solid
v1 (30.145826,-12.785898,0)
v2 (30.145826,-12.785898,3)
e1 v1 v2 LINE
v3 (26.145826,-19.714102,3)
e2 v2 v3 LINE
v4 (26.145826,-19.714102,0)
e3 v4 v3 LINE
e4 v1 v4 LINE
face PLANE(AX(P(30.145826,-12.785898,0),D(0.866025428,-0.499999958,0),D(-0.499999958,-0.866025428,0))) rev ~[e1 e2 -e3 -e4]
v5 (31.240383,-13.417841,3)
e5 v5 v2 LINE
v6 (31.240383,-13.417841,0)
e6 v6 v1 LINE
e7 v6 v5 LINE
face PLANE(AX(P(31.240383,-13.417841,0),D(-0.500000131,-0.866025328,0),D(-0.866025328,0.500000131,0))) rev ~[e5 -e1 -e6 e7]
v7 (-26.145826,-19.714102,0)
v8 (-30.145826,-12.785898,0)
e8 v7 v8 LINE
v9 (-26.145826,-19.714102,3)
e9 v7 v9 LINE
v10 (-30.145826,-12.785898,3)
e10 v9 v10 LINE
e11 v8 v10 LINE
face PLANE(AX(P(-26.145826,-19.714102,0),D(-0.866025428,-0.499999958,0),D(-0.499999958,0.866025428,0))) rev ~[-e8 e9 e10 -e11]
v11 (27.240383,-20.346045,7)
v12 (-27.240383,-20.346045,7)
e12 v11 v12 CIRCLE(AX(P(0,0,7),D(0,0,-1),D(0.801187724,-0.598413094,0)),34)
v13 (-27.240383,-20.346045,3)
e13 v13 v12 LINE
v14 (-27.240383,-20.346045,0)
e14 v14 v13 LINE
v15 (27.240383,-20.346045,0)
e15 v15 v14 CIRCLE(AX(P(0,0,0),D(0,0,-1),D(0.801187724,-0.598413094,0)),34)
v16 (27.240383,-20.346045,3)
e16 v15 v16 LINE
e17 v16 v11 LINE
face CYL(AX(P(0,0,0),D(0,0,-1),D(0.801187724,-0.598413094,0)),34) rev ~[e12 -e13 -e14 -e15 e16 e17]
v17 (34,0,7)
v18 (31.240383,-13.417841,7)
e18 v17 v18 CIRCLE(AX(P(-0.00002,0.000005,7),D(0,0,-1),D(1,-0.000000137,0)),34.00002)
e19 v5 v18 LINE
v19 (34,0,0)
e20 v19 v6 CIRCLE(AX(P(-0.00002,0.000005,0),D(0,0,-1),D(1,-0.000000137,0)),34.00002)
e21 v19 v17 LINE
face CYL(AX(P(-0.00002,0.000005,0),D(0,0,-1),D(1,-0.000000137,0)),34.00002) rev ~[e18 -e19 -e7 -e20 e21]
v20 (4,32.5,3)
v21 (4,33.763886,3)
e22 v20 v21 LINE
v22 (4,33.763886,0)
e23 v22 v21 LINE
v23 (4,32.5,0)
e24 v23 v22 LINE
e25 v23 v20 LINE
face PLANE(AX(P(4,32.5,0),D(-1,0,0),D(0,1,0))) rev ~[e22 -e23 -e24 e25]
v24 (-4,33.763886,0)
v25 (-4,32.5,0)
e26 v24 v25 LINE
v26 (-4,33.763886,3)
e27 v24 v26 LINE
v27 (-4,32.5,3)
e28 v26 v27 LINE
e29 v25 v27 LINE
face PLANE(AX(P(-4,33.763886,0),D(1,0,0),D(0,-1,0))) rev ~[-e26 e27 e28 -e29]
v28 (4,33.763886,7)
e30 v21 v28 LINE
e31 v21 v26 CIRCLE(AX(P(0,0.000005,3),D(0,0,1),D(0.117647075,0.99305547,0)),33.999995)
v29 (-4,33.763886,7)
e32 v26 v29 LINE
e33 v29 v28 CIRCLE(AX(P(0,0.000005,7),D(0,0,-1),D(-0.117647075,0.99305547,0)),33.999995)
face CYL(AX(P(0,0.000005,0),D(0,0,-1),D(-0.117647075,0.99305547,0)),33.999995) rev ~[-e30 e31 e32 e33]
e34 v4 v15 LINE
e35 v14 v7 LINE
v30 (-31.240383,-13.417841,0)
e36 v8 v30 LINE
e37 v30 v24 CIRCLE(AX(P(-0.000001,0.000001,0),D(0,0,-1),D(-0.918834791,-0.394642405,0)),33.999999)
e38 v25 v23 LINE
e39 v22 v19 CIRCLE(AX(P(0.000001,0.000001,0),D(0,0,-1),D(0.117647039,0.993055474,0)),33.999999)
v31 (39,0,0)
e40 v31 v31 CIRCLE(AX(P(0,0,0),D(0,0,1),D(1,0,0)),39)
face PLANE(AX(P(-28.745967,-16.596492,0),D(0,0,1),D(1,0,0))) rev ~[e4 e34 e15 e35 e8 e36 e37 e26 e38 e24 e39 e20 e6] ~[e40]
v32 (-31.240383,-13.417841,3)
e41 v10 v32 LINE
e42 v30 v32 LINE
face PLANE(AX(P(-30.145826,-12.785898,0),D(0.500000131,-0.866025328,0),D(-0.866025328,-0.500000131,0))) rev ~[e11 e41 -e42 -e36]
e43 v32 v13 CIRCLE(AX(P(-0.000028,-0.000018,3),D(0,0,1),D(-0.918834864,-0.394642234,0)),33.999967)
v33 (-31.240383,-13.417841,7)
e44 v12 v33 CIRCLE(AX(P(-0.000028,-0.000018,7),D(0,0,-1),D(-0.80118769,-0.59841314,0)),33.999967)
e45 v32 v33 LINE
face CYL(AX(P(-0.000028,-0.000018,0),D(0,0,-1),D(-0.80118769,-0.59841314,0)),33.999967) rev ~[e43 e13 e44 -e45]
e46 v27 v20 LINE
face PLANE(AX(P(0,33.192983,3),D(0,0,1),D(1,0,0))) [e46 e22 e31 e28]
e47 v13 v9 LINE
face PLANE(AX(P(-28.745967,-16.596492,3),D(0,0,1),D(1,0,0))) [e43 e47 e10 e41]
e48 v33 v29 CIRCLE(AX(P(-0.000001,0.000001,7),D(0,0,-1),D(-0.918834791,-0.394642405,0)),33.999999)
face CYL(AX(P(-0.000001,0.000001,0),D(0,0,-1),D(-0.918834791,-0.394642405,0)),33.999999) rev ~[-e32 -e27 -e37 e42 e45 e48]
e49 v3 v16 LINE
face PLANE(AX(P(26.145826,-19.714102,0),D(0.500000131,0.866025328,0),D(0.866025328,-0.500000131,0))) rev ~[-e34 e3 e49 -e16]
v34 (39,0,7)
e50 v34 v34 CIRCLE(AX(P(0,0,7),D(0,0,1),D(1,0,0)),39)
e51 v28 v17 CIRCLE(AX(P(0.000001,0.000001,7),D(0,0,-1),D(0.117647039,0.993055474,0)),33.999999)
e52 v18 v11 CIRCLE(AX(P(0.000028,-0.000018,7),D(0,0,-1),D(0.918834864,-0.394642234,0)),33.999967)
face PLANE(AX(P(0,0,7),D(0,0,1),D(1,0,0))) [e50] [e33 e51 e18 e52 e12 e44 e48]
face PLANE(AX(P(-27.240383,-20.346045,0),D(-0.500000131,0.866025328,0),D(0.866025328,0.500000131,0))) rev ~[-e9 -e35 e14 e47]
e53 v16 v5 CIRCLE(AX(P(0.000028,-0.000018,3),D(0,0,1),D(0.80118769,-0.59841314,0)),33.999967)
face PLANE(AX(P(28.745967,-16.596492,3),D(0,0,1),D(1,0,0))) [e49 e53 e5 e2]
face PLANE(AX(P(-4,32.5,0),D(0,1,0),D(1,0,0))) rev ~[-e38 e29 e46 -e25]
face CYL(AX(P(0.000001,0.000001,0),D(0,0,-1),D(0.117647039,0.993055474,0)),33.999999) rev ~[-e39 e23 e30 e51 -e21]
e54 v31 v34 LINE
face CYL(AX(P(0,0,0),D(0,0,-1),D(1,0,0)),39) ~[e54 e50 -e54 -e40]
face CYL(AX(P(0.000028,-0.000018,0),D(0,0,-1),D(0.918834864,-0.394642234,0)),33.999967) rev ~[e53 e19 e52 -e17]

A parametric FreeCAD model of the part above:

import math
import FreeCAD as App
import Part
import Sketcher
from FreeCAD import Vector
Q = App.Units.Quantity

doc = App.newDocument("Part")
body = doc.addObject("PartDesign::Body", "Body")

# Sketch on XY plane
sketch1 = doc.addObject("Sketcher::SketchObject", "Sketch")
body.addObject(sketch1)
sketch1.AttachmentSupport = (doc.XY_Plane, [""])
sketch1.MapMode = "FlatFace"
sketch1.addGeometry(Part.Circle(Vector(0, 0, 0), Vector(0, 0, 1), 39), False)
sketch1.addGeometry(Part.ArcOfCircle(Part.Circle(Vector(0, 0.000005, 0), Vector(0, 0, 1), 33.999995), math.radians(83.243672), math.radians(96.756328)), False)
sketch1.addGeometry(Part.ArcOfCircle(Part.Circle(Vector(0.000001, 0.000001, 0), Vector(0, 0, 1), 33.999999), math.radians(-0.000001), math.radians(83.243674)), False)
sketch1.addGeometry(Part.ArcOfCircle(Part.Circle(Vector(-0.00002, 0.000005, 0), Vector(0, 0, 1), 34.00002), math.radians(-23.243666), math.radians(-0.000008)), False)
sketch1.addGeometry(Part.ArcOfCircle(Part.Circle(Vector(0.000028, -0.000018, 0), Vector(0, 0, 1), 33.999967), math.radians(-36.756332), math.radians(-23.243663)), False)
sketch1.addGeometry(Part.ArcOfCircle(Part.Circle(Vector(0, 0, 0), Vector(0, 0, 1), 34), math.radians(-143.243672), math.radians(-36.756328)), False)
sketch1.addGeometry(Part.ArcOfCircle(Part.Circle(Vector(-0.000028, -0.000018, 0), Vector(0, 0, 1), 33.999967), math.radians(-156.756337), math.radians(-143.243668)), False)
sketch1.addGeometry(Part.ArcOfCircle(Part.Circle(Vector(-0.000001, 0.000001, 0), Vector(0, 0, 1), 33.999999), math.radians(96.756326), math.radians(203.243674)), False)
sketch1.addConstraint(Sketcher.Constraint("Coincident", 1, 1, 2, 2))
sketch1.addConstraint(Sketcher.Constraint("Coincident", 2, 1, 3, 2))
sketch1.addConstraint(Sketcher.Constraint("Coincident", 3, 1, 4, 2))
sketch1.addConstraint(Sketcher.Constraint("Coincident", 4, 1, 5, 2))
sketch1.addConstraint(Sketcher.Constraint("Coincident", 5, 1, 6, 2))
sketch1.addConstraint(Sketcher.Constraint("Coincident", 6, 1, 7, 2))
sketch1.addConstraint(Sketcher.Constraint("Coincident", 7, 1, 1, 2))
sketch1.addConstraint(Sketcher.Constraint("Coincident", 0, 3, -1, 1))
sketch1.addConstraint(Sketcher.Constraint("Coincident", 1, 3, -1, 1))
sketch1.addConstraint(Sketcher.Constraint("Coincident", 2, 3, -1, 1))
sketch1.addConstraint(Sketcher.Constraint("Coincident", 5, 3, -1, 1))
sketch1.addConstraint(Sketcher.Constraint("Coincident", 7, 3, -1, 1))
sketch1.addConstraint(Sketcher.Constraint("PointOnObject", 2, 1, -1))
sketch1.addConstraint(Sketcher.Constraint("Diameter", 0, Q("78 mm")))
sketch1.addConstraint(Sketcher.Constraint("Radius", 2, Q("33.999999 mm")))
sketch1.addConstraint(Sketcher.Constraint("Radius", 5, Q("34 mm")))
sketch1.addConstraint(Sketcher.Constraint("DistanceX", -1, 1, 1, 1, Q("4 mm")))
sketch1.addConstraint(Sketcher.Constraint("DistanceX", 7, 1, -1, 1, Q("4 mm")))
sketch1.addConstraint(Sketcher.Constraint("DistanceX", 4, 1, 3, 1, Q("4 mm")))
sketch1.addConstraint(Sketcher.Constraint("DistanceX", 6, 1, 5, 1, Q("4 mm")))
sketch1.addConstraint(Sketcher.Constraint("Radius", 3, Q("34.00002 mm")))
sketch1.addConstraint(Sketcher.Constraint("Radius", 4, Q("33.999967 mm")))
sketch1.addConstraint(Sketcher.Constraint("Radius", 6, Q("33.999967 mm")))
sketch1.addConstraint(Sketcher.Constraint("DistanceY", 3, 1, -1, 1, Q("13.417841 mm")))
sketch1.addConstraint(Sketcher.Constraint("DistanceY", 6, 1, -1, 1, Q("13.417841 mm")))
sketch1.addConstraint(Sketcher.Constraint("DistanceY", 3, 3, 1, 1, Q("33.763881 mm")))
pad1 = doc.addObject("PartDesign::Pad", "Pad")
body.addObject(pad1)
pad1.Profile = sketch1
pad1.Length = 7

# Sketch on XY plane
sketch2 = doc.addObject("Sketcher::SketchObject", "Sketch001")
body.addObject(sketch2)
sketch2.AttachmentSupport = (doc.XY_Plane, [""])
sketch2.MapMode = "FlatFace"
sketch2.addGeometry(Part.LineSegment(Vector(4, 32.5, 0), Vector(4, 33.8, 0)), False)
sketch2.addGeometry(Part.ArcOfCircle(Part.Circle(Vector(0, 0, 0), Vector(0, 0, 1), 34), math.radians(83.24), math.radians(96.76)), False)
sketch2.addGeometry(Part.LineSegment(Vector(-4, 33.8, 0), Vector(-4, 32.5, 0)), False)
sketch2.addGeometry(Part.LineSegment(Vector(-4, 32.5, 0), Vector(4, 32.5, 0)), False)
sketch2.addConstraint(Sketcher.Constraint("Coincident", 0, 2, 1, 1))
sketch2.addConstraint(Sketcher.Constraint("Coincident", 1, 2, 2, 1))
sketch2.addConstraint(Sketcher.Constraint("Coincident", 2, 2, 3, 1))
sketch2.addConstraint(Sketcher.Constraint("Coincident", 3, 2, 0, 1))
sketch2.addConstraint(Sketcher.Constraint("Vertical", 0))
sketch2.addConstraint(Sketcher.Constraint("Vertical", 2))
sketch2.addConstraint(Sketcher.Constraint("Horizontal", 3))
sketch2.addConstraint(Sketcher.Constraint("Coincident", 1, 3, -1, 1))
sketch2.addConstraint(Sketcher.Constraint("Horizontal", 0, 2, 1, 2))
sketch2.addConstraint(Sketcher.Constraint("DistanceX", 3, 1, 3, 2, Q("8 mm")))
sketch2.addConstraint(Sketcher.Constraint("DistanceY", -1, 1, 2, 2, Q("32.5 mm")))
sketch2.addConstraint(Sketcher.Constraint("Radius", 1, Q("33.999995 mm")))
pad2 = doc.addObject("PartDesign::Pad", "Pad001")
body.addObject(pad2)
pad2.Profile = sketch2
pad2.Length = 3

# Sketch on XY plane
sketch3 = doc.addObject("Sketcher::SketchObject", "Sketch002")
body.addObject(sketch3)
sketch3.AttachmentSupport = (doc.XY_Plane, [""])
sketch3.MapMode = "FlatFace"
sketch3.addGeometry(Part.ArcOfCircle(Part.Circle(Vector(0, 0, 0), Vector(0, 0, 1), 34), math.radians(-36.76), math.radians(-23.24)), False)
sketch3.addGeometry(Part.LineSegment(Vector(31.2, -13.4, 0), Vector(30.1, -12.8, 0)), False)
sketch3.addGeometry(Part.LineSegment(Vector(30.1, -12.8, 0), Vector(26.1, -19.7, 0)), False)
sketch3.addGeometry(Part.LineSegment(Vector(26.1, -19.7, 0), Vector(27.2, -20.3, 0)), False)
sketch3.addConstraint(Sketcher.Constraint("Coincident", 0, 2, 1, 1))
sketch3.addConstraint(Sketcher.Constraint("Coincident", 1, 2, 2, 1))
sketch3.addConstraint(Sketcher.Constraint("Coincident", 2, 2, 3, 1))
sketch3.addConstraint(Sketcher.Constraint("Coincident", 3, 2, 0, 1))
sketch3.addConstraint(Sketcher.Constraint("Perpendicular", 1, 2))
sketch3.addConstraint(Sketcher.Constraint("Perpendicular", 2, 3))
sketch3.addConstraint(Sketcher.Constraint("Equal", 1, 3))
sketch3.addConstraint(Sketcher.Constraint("Angle", 1, Q("149.999991 deg")))
sketch3.addConstraint(Sketcher.Constraint("Distance", 2, Q("8.000001 mm")))
sketch3.addConstraint(Sketcher.Constraint("Radius", 0, Q("33.999967 mm")))
sketch3.addConstraint(Sketcher.Constraint("DistanceY", 0, 2, -1, 1, Q("13.417841 mm")))
sketch3.addConstraint(Sketcher.Constraint("DistanceY", 1, 2, 0, 3, Q("12.78588 mm")))
sketch3.addConstraint(Sketcher.Constraint("DistanceX", -1, 1, 0, 2, Q("31.240383 mm")))
pad3 = doc.addObject("PartDesign::Pad", "Pad002")
body.addObject(pad3)
pad3.Profile = sketch3
pad3.Length = 3

# Sketch on XY plane
sketch4 = doc.addObject("Sketcher::SketchObject", "Sketch003")
body.addObject(sketch4)
sketch4.AttachmentSupport = (doc.XY_Plane, [""])
sketch4.MapMode = "FlatFace"
sketch4.addGeometry(Part.LineSegment(Vector(-30.1, -12.8, 0), Vector(-31.2, -13.4, 0)), False)
sketch4.addGeometry(Part.ArcOfCircle(Part.Circle(Vector(0, 0, 0), Vector(0, 0, 1), 34), math.radians(-156.76), math.radians(-143.24)), False)
sketch4.addGeometry(Part.LineSegment(Vector(-27.2, -20.3, 0), Vector(-26.1, -19.7, 0)), False)
sketch4.addGeometry(Part.LineSegment(Vector(-26.1, -19.7, 0), Vector(-30.1, -12.8, 0)), False)
sketch4.addConstraint(Sketcher.Constraint("Coincident", 0, 2, 1, 1))
sketch4.addConstraint(Sketcher.Constraint("Coincident", 1, 2, 2, 1))
sketch4.addConstraint(Sketcher.Constraint("Coincident", 2, 2, 3, 1))
sketch4.addConstraint(Sketcher.Constraint("Coincident", 3, 2, 0, 1))
sketch4.addConstraint(Sketcher.Constraint("Parallel", 0, 2))
sketch4.addConstraint(Sketcher.Constraint("Perpendicular", 2, 3))
sketch4.addConstraint(Sketcher.Constraint("Equal", 0, 2))
sketch4.addConstraint(Sketcher.Constraint("Angle", 0, Q("-149.999991 deg")))
sketch4.addConstraint(Sketcher.Constraint("Distance", 3, Q("8.000001 mm")))
sketch4.addConstraint(Sketcher.Constraint("Radius", 1, Q("33.999967 mm")))
sketch4.addConstraint(Sketcher.Constraint("DistanceY", 0, 2, -1, 1, Q("13.417841 mm")))
sketch4.addConstraint(Sketcher.Constraint("DistanceY", 2, 2, 0, 2, Q("6.296261 mm")))
sketch4.addConstraint(Sketcher.Constraint("DistanceX", 0, 2, -1, 1, Q("31.240383 mm")))
pad4 = doc.addObject("PartDesign::Pad", "Pad003")
body.addObject(pad4)
pad4.Profile = sketch4
pad4.Length = 3

doc.recompute()
